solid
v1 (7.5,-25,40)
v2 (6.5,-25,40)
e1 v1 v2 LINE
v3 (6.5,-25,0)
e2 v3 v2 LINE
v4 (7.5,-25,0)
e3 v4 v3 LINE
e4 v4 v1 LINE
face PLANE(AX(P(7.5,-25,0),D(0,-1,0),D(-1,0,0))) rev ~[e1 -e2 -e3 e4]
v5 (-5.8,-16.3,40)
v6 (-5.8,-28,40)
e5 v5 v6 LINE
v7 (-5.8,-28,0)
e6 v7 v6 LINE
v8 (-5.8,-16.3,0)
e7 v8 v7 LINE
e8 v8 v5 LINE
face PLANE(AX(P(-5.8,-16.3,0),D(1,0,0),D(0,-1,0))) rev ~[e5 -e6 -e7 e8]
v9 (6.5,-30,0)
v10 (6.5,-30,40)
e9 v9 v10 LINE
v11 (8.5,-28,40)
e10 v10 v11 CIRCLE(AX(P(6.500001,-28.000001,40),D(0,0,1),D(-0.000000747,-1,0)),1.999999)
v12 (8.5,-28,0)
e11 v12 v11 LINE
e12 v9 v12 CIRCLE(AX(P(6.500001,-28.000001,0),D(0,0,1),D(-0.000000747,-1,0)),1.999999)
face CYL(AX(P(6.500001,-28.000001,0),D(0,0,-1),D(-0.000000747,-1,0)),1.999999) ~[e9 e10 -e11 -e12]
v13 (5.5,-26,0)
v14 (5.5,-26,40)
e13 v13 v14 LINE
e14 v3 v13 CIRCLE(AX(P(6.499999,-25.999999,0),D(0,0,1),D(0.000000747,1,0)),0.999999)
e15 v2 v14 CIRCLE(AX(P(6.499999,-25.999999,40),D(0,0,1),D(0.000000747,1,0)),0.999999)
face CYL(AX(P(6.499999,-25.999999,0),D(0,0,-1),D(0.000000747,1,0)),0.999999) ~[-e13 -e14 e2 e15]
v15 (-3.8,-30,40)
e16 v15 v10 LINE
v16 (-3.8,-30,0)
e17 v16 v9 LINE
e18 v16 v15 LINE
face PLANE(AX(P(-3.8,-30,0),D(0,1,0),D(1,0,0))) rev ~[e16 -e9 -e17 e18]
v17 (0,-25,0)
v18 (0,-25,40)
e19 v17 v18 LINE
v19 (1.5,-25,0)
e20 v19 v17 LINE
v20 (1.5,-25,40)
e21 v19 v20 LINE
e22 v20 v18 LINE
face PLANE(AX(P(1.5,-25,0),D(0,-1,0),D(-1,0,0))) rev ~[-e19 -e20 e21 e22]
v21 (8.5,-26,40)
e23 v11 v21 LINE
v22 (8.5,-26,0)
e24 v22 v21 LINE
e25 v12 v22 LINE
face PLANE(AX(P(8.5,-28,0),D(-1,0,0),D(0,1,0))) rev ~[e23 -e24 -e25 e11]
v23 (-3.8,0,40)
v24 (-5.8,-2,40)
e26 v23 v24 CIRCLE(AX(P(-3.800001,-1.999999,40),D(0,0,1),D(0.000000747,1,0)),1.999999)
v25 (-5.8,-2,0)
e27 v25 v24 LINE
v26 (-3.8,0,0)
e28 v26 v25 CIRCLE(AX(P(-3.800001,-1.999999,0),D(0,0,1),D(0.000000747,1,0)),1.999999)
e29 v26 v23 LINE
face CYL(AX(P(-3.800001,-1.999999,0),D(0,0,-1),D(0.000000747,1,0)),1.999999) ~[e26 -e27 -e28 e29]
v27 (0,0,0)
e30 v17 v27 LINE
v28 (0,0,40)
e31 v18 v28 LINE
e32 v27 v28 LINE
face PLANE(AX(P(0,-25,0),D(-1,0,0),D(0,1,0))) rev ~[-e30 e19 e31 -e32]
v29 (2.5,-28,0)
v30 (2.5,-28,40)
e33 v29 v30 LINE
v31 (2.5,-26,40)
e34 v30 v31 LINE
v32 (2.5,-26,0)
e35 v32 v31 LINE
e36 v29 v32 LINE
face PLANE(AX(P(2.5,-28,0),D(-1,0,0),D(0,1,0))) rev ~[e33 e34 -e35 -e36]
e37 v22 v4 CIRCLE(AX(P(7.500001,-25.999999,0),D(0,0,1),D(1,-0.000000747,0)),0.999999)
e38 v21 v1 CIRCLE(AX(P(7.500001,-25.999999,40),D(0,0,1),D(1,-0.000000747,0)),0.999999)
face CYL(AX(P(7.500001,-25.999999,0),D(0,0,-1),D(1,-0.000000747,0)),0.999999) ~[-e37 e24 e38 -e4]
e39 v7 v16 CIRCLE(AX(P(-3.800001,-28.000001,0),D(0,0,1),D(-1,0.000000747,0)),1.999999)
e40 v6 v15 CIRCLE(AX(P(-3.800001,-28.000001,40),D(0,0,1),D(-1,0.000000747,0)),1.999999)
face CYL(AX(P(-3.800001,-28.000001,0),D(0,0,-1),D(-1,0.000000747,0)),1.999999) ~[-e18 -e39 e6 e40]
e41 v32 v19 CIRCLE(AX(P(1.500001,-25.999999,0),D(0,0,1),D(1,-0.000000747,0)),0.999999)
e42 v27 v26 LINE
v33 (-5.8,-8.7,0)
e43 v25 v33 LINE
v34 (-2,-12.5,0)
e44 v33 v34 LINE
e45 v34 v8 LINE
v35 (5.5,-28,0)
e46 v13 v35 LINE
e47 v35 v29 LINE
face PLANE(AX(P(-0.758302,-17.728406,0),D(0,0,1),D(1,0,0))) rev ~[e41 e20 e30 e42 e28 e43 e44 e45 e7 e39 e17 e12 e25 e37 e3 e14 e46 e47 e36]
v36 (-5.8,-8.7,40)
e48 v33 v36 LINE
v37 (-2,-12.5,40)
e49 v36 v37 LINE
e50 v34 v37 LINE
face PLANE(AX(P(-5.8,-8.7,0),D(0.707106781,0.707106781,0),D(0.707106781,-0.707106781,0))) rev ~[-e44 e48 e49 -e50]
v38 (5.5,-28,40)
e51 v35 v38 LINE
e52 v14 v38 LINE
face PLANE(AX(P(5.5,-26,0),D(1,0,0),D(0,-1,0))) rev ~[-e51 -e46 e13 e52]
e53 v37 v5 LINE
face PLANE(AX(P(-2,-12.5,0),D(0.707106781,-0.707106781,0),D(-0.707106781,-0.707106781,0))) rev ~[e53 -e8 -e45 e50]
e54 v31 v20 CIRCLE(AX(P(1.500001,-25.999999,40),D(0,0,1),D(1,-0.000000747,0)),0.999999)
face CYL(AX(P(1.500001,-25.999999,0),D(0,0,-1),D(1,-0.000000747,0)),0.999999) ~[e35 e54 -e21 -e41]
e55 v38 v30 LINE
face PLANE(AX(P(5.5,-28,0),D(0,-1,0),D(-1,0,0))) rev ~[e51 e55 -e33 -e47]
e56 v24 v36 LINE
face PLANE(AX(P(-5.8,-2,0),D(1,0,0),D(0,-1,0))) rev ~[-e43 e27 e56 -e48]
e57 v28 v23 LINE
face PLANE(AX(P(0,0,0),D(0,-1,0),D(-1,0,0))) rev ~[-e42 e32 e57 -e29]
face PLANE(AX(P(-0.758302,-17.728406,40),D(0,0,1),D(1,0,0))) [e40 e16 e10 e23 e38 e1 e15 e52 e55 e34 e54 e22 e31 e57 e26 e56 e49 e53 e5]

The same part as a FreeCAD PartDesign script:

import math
import FreeCAD as App
import Part
import Sketcher
Q = App.Units.Quantity

doc = App.newDocument("Part")
params = doc.addObject("Spreadsheet::Sheet", "Params")
for row, (alias, value) in enumerate([
    ("sketch1_radius", "1.999999 mm"),
    ("sketch1_radius2", "0.999999 mm"),
    ("sketch1_width", "3 mm"),
    ("sketch1_height", "25 mm"),
    ("sketch1_height2", "2 mm"),
    ("pad1_length", "40 mm"),
], start=1):
    params.set(f"A{row}", alias)
    params.set(f"B{row}", "=" + value)
    params.setAlias(f"B{row}", alias)

body = doc.addObject("PartDesign::Body", "Body")

# Sketch on XY plane
sketch1 = body.newObject("Sketcher::SketchObject", "Sketch")
sketch1.AttachmentSupport = (doc.getObject("XY_Plane"), [""])
sketch1.MapMode = "FlatFace"
sketch1.addGeometry(Part.LineSegment(App.Vector(0, -25, 0), App.Vector(0, 0, 0)), False)
sketch1.addGeometry(Part.LineSegment(App.Vector(0, 0, 0), App.Vector(-3.8, 0, 0)), False)
sketch1.addGeometry(Part.ArcOfCircle(Part.Circle(App.Vector(-3.8, -2, 0), App.Vector(0, 0, 1), 2), math.radians(90), math.radians(180)), False)
sketch1.addGeometry(Part.LineSegment(App.Vector(-5.8, -2, 0), App.Vector(-5.8, -8.7, 0)), False)
sketch1.addGeometry(Part.LineSegment(App.Vector(-5.8, -8.7, 0), App.Vector(-2, -12.5, 0)), False)
sketch1.addGeometry(Part.LineSegment(App.Vector(-2, -12.5, 0), App.Vector(-5.8, -16.3, 0)), False)
sketch1.addGeometry(Part.LineSegment(App.Vector(-5.8, -16.3, 0), App.Vector(-5.8, -28, 0)), False)
sketch1.addGeometry(Part.ArcOfCircle(Part.Circle(App.Vector(-3.8, -28, 0), App.Vector(0, 0, 1), 2), math.radians(180), math.radians(270)), False)
sketch1.addGeometry(Part.LineSegment(App.Vector(-3.8, -30, 0), App.Vector(6.5, -30, 0)), False)
sketch1.addGeometry(Part.ArcOfCircle(Part.Circle(App.Vector(6.5, -28, 0), App.Vector(0, 0, 1), 2), math.radians(-90), math.radians(0)), False)
sketch1.addGeometry(Part.LineSegment(App.Vector(8.5, -28, 0), App.Vector(8.5, -26, 0)), False)
sketch1.addGeometry(Part.ArcOfCircle(Part.Circle(App.Vector(7.5, -26, 0), App.Vector(0, 0, 1), 1), math.radians(0), math.radians(90)), False)
sketch1.addGeometry(Part.LineSegment(App.Vector(7.5, -25, 0), App.Vector(6.5, -25, 0)), False)
sketch1.addGeometry(Part.ArcOfCircle(Part.Circle(App.Vector(6.5, -26, 0), App.Vector(0, 0, 1), 1), math.radians(90), math.radians(180)), False)
sketch1.addGeometry(Part.LineSegment(App.Vector(5.5, -26, 0), App.Vector(5.5, -28, 0)), False)
sketch1.addGeometry(Part.LineSegment(App.Vector(5.5, -28, 0), App.Vector(2.5, -28, 0)), False)
sketch1.addGeometry(Part.LineSegment(App.Vector(2.5, -28, 0), App.Vector(2.5, -26, 0)), False)
sketch1.addGeometry(Part.ArcOfCircle(Part.Circle(App.Vector(1.5, -26, 0), App.Vector(0, 0, 1), 1), math.radians(0), math.radians(90)), False)
sketch1.addGeometry(Part.LineSegment(App.Vector(1.5, -25, 0), App.Vector(0, -25, 0)), False)
sketch1.addConstraint(Sketcher.Constraint("Coincident", 0, 2, 1, 1))
sketch1.addConstraint(Sketcher.Constraint("Tangent", 1, 2, 2, 1))
sketch1.addConstraint(Sketcher.Constraint("Tangent", 2, 2, 3, 1))
sketch1.addConstraint(Sketcher.Constraint("Coincident", 3, 2, 4, 1))
sketch1.addConstraint(Sketcher.Constraint("Coincident", 4, 2, 5, 1))
sketch1.addConstraint(Sketcher.Constraint("Coincident", 5, 2, 6, 1))
sketch1.addConstraint(Sketcher.Constraint("Tangent", 6, 2, 7, 1))
sketch1.addConstraint(Sketcher.Constraint("Tangent", 7, 2, 8, 1))
sketch1.addConstraint(Sketcher.Constraint("Tangent", 8, 2, 9, 1))
sketch1.addConstraint(Sketcher.Constraint("Tangent", 9, 2, 10, 1))
sketch1.addConstraint(Sketcher.Constraint("Tangent", 10, 2, 11, 1))
sketch1.addConstraint(Sketcher.Constraint("Tangent", 11, 2, 12, 1))
sketch1.addConstraint(Sketcher.Constraint("Tangent", 12, 2, 13, 1))
sketch1.addConstraint(Sketcher.Constraint("Tangent", 13, 2, 14, 1))
sketch1.addConstraint(Sketcher.Constraint("Coincident", 14, 2, 15, 1))
sketch1.addConstraint(Sketcher.Constraint("Coincident", 15, 2, 16, 1))
sketch1.addConstraint(Sketcher.Constraint("Tangent", 16, 2, 17, 1))
sketch1.addConstraint(Sketcher.Constraint("Tangent", 17, 2, 18, 1))
sketch1.addConstraint(Sketcher.Constraint("Coincident", 18, 2, 0, 1))
sketch1.addConstraint(Sketcher.Constraint("Vertical", 0))
sketch1.addConstraint(Sketcher.Constraint("Horizontal", 1))
sketch1.addConstraint(Sketcher.Constraint("Vertical", 3))
sketch1.addConstraint(Sketcher.Constraint("Vertical", 6))
sketch1.addConstraint(Sketcher.Constraint("Horizontal", 8))
sketch1.addConstraint(Sketcher.Constraint("Vertical", 10))
sketch1.addConstraint(Sketcher.Constraint("Horizontal", 12))
sketch1.addConstraint(Sketcher.Constraint("Vertical", 14))
sketch1.addConstraint(Sketcher.Constraint("Horizontal", 15))
sketch1.addConstraint(Sketcher.Constraint("Vertical", 16))
sketch1.addConstraint(Sketcher.Constraint("Horizontal", 18))
sketch1.addConstraint(Sketcher.Constraint("Coincident", 0, 2, -1, 1))
sketch1.addConstraint(Sketcher.Constraint("Equal", 2, 7))
sketch1.addConstraint(Sketcher.Constraint("Equal", 7, 9))
sketch1.addConstraint(Sketcher.Constraint("Equal", 11, 13))
sketch1.addConstraint(Sketcher.Constraint("Equal", 13, 17))
sketch1.addConstraint(Sketcher.Constraint("Perpendicular", 4, 5))
sketch1.addConstraint(Sketcher.Constraint("Horizontal", 13, 3, 17, 3))
sketch1.addConstraint(Sketcher.Constraint("Horizontal", 9, 2, 14, 2))
sketch1.addConstraint(Sketcher.Constraint("Vertical", 2, 3, 7, 3))
sketch1.addConstraint(Sketcher.Constraint("Vertical", 13, 3, 8, 2))
sketch1.addConstraint(Sketcher.Constraint("Equal", 4, 5))
sketch1.addConstraint(Sketcher.Constraint("Radius", 2, Q("1.999999 mm")))
sketch1.addConstraint(Sketcher.Constraint("Radius", 11, Q("0.999999 mm")))
sketch1.addConstraint(Sketcher.Constraint("DistanceX", 15, 2, 15, 1, Q("3 mm")))
sketch1.addConstraint(Sketcher.Constraint("DistanceY", 0, 1, 0, 2, Q("25 mm")))
sketch1.addConstraint(Sketcher.Constraint("DistanceY", 10, 1, 10, 2, Q("2 mm")))
sketch1.addConstraint(Sketcher.Constraint("DistanceX", 1, 2, 1, 1, Q("3.8 mm")))
sketch1.addConstraint(Sketcher.Constraint("DistanceX", 8, 1, 8, 2, Q("10.3 mm")))
sketch1.addConstraint(Sketcher.Constraint("DistanceY", 3, 2, 3, 1, Q("6.7 mm")))
sketch1.addConstraint(Sketcher.Constraint("DistanceY", 6, 2, 6, 1, Q("11.7 mm")))
sketch1.setExpression("Constraints[41]", "Params.sketch1_radius")
sketch1.setExpression("Constraints[42]", "Params.sketch1_radius2")
sketch1.setExpression("Constraints[43]", "Params.sketch1_width")
sketch1.setExpression("Constraints[44]", "Params.sketch1_height")
sketch1.setExpression("Constraints[45]", "Params.sketch1_height2")
pad1 = body.newObject("PartDesign::Pad", "Pad")
pad1.Profile = sketch1
pad1.setExpression("Length", "Params.pad1_length")

doc.recompute()
